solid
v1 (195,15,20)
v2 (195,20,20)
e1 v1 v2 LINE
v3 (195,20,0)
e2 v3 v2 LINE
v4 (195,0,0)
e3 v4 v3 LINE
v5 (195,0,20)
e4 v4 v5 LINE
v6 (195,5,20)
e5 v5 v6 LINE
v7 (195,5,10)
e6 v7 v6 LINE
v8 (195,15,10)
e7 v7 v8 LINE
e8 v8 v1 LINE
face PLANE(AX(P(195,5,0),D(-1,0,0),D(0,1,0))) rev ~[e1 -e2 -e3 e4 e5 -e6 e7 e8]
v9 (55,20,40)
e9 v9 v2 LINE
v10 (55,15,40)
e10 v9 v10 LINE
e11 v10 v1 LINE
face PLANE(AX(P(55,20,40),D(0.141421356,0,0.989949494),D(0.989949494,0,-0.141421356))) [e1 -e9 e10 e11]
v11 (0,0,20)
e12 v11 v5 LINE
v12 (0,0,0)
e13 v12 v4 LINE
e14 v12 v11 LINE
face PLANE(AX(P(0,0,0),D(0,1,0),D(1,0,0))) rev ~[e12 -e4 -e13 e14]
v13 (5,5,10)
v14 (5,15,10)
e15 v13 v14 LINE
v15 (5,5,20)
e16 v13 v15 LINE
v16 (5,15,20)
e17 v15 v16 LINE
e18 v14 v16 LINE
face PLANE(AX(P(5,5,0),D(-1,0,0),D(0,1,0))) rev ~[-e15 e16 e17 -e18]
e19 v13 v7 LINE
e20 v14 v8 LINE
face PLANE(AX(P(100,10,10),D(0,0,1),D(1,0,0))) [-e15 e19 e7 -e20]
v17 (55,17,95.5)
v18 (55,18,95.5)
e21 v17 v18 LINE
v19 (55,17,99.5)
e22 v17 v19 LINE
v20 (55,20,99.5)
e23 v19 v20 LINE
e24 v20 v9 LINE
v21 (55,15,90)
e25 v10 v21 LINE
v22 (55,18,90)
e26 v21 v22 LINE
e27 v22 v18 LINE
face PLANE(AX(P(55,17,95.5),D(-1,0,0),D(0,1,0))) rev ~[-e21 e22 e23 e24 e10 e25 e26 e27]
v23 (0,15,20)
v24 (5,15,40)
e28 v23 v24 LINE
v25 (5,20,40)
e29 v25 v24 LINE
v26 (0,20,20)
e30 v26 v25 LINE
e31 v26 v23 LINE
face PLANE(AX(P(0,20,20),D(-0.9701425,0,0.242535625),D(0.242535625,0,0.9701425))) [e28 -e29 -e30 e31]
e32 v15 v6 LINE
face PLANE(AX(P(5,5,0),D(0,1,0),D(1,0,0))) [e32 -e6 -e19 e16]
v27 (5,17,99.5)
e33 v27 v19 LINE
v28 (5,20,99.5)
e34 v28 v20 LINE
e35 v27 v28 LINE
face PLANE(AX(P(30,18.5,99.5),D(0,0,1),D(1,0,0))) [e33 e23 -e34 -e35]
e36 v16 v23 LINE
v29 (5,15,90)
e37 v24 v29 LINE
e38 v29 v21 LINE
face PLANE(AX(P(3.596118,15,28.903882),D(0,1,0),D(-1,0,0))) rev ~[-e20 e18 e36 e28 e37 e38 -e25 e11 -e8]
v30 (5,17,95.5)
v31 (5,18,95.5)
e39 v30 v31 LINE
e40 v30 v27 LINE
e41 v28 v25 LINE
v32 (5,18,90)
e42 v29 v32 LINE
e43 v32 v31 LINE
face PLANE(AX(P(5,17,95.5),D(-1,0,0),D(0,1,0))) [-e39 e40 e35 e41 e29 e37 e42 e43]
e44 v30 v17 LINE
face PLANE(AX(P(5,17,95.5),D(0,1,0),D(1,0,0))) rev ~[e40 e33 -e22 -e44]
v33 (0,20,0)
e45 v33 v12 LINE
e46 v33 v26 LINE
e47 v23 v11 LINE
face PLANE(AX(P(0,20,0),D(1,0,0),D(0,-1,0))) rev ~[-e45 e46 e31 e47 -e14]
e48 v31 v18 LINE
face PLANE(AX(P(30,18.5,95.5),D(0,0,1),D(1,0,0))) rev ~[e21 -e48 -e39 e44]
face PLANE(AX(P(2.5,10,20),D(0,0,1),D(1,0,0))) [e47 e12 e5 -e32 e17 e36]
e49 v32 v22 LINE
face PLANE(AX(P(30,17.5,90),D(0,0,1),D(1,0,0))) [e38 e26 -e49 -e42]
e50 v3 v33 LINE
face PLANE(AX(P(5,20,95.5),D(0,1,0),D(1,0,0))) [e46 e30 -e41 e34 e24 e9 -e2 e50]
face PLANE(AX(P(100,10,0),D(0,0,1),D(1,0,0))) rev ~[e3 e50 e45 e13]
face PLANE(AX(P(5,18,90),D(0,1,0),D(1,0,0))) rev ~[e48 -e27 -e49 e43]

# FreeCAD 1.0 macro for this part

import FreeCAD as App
import Part
import Sketcher
Q = App.Units.Quantity

doc = App.newDocument("Part")
params = doc.addObject("Spreadsheet::Sheet", "Params")
for row, (alias, value) in enumerate([
    ("sketch1_width", "195 mm"),
    ("sketch1_width2", "190 mm"),
    ("sketch1_height", "20 mm"),
    ("sketch1_height2", "5 mm"),
    ("pad1_length", "20 mm"),
    ("sketch2_width", "190 mm"),
    ("sketch2_height", "10 mm"),
    ("pad2_length", "10 mm"),
    ("sketch3_width", "50 mm"),
    ("sketch3_height", "5 mm"),
    ("pad3_length", "70 mm"),
    ("sketch4_width", "5 mm"),
    ("sketch4_width2", "140 mm"),
    ("sketch4_height", "20 mm"),
    ("pad4_length", "5 mm"),
    ("sketch5_width", "50 mm"),
    ("sketch5_height", "2 mm"),
    ("pad5_length", "5.5 mm"),
    ("sketch6_width", "50 mm"),
    ("sketch6_height", "3 mm"),
    ("pad6_length", "4 mm"),
], start=1):
    params.set(f"A{row}", alias)
    params.set(f"B{row}", "=" + value)
    params.setAlias(f"B{row}", alias)

body = doc.addObject("PartDesign::Body", "Body")

sketch1 = body.newObject("Sketcher::SketchObject", "Sketch")
sketch1.AttachmentSupport = (doc.getObject("XY_Plane"), [""])
sketch1.MapMode = "FlatFace"
sketch1.addGeometry(Part.LineSegment(App.Vector(0, 20, 0), App.Vector(0, 0, 0)), False)
sketch1.addGeometry(Part.LineSegment(App.Vector(0, 0, 0), App.Vector(195, 0, 0)), False)
sketch1.addGeometry(Part.LineSegment(App.Vector(195, 0, 0), App.Vector(195, 5, 0)), False)
sketch1.addGeometry(Part.LineSegment(App.Vector(195, 5, 0), App.Vector(5, 5, 0)), False)
sketch1.addGeometry(Part.LineSegment(App.Vector(5, 5, 0), App.Vector(5, 15, 0)), False)
sketch1.addGeometry(Part.LineSegment(App.Vector(5, 15, 0), App.Vector(195, 15, 0)), False)
sketch1.addGeometry(Part.LineSegment(App.Vector(195, 15, 0), App.Vector(195, 20, 0)), False)
sketch1.addGeometry(Part.LineSegment(App.Vector(195, 20, 0), App.Vector(0, 20, 0)), False)
sketch1.addConstraint(Sketcher.Constraint("Coincident", 0, 2, 1, 1))
sketch1.addConstraint(Sketcher.Constraint("Coincident", 1, 2, 2, 1))
sketch1.addConstraint(Sketcher.Constraint("Coincident", 2, 2, 3, 1))
sketch1.addConstraint(Sketcher.Constraint("Coincident", 3, 2, 4, 1))
sketch1.addConstraint(Sketcher.Constraint("Coincident", 4, 2, 5, 1))
sketch1.addConstraint(Sketcher.Constraint("Coincident", 5, 2, 6, 1))
sketch1.addConstraint(Sketcher.Constraint("Coincident", 6, 2, 7, 1))
sketch1.addConstraint(Sketcher.Constraint("Coincident", 7, 2, 0, 1))
sketch1.addConstraint(Sketcher.Constraint("Vertical", 0))
sketch1.addConstraint(Sketcher.Constraint("Horizontal", 1))
sketch1.addConstraint(Sketcher.Constraint("Vertical", 2))
sketch1.addConstraint(Sketcher.Constraint("Horizontal", 3))
sketch1.addConstraint(Sketcher.Constraint("Vertical", 4))
sketch1.addConstraint(Sketcher.Constraint("Horizontal", 5))
sketch1.addConstraint(Sketcher.Constraint("Vertical", 6))
sketch1.addConstraint(Sketcher.Constraint("Horizontal", 7))
sketch1.addConstraint(Sketcher.Constraint("Coincident", 0, 2, -1, 1))
sketch1.addConstraint(Sketcher.Constraint("Vertical", 2, 2, 5, 2))
sketch1.addConstraint(Sketcher.Constraint("Equal", 2, 6))
sketch1.addConstraint(Sketcher.Constraint("DistanceX", 1, 1, 1, 2, Q("195 mm")))
sketch1.addConstraint(Sketcher.Constraint("DistanceX", 3, 2, 3, 1, Q("190 mm")))
sketch1.addConstraint(Sketcher.Constraint("DistanceY", 0, 2, 0, 1, Q("20 mm")))
sketch1.addConstraint(Sketcher.Constraint("DistanceY", 2, 1, 2, 2, Q("5 mm")))
sketch1.setExpression("Constraints[19]", "Params.sketch1_width")
sketch1.setExpression("Constraints[20]", "Params.sketch1_width2")
sketch1.setExpression("Constraints[21]", "Params.sketch1_height")
sketch1.setExpression("Constraints[22]", "Params.sketch1_height2")
pad1 = body.newObject("PartDesign::Pad", "Pad")
pad1.Profile = sketch1
pad1.setExpression("Length", "Params.pad1_length")

sketch2 = body.newObject("Sketcher::SketchObject", "Sketch001")
sketch2.AttachmentSupport = (doc.getObject("XY_Plane"), [""])
sketch2.MapMode = "FlatFace"
sketch2.addGeometry(Part.LineSegment(App.Vector(5, 15, 0), App.Vector(5, 5, 0)), False)
sketch2.addGeometry(Part.LineSegment(App.Vector(5, 5, 0), App.Vector(195, 5, 0)), False)
sketch2.addGeometry(Part.LineSegment(App.Vector(195, 5, 0), App.Vector(195, 15, 0)), False)
sketch2.addGeometry(Part.LineSegment(App.Vector(195, 15, 0), App.Vector(5, 15, 0)), False)
sketch2.addConstraint(Sketcher.Constraint("Coincident", 0, 2, 1, 1))
sketch2.addConstraint(Sketcher.Constraint("Coincident", 1, 2, 2, 1))
sketch2.addConstraint(Sketcher.Constraint("Coincident", 2, 2, 3, 1))
sketch2.addConstraint(Sketcher.Constraint("Coincident", 3, 2, 0, 1))
sketch2.addConstraint(Sketcher.Constraint("Vertical", 0))
sketch2.addConstraint(Sketcher.Constraint("Horizontal", 1))
sketch2.addConstraint(Sketcher.Constraint("Vertical", 2))
sketch2.addConstraint(Sketcher.Constraint("Horizontal", 3))
sketch2.addConstraint(Sketcher.Constraint("DistanceX", 1, 1, 1, 2, Q("190 mm")))
sketch2.addConstraint(Sketcher.Constraint("DistanceY", 0, 2, 0, 1, Q("10 mm")))
sketch2.addConstraint(Sketcher.Constraint("DistanceX", -1, 1, 0, 2, Q("5 mm")))
sketch2.addConstraint(Sketcher.Constraint("DistanceY", -1, 1, 0, 2, Q("5 mm")))
sketch2.setExpression("Constraints[8]", "Params.sketch2_width")
sketch2.setExpression("Constraints[9]", "Params.sketch2_height")
pad2 = body.newObject("PartDesign::Pad", "Pad001")
pad2.Profile = sketch2
pad2.setExpression("Length", "Params.pad2_length")

sketch3 = body.newObject("Sketcher::SketchObject", "Sketch002")
sketch3.AttachmentSupport = (doc.getObject("XY_Plane"), [""])
sketch3.MapMode = "FlatFace"
sketch3.AttachmentOffset = App.Placement(App.Vector(0, 0, 20), App.Rotation())
sketch3.addGeometry(Part.LineSegment(App.Vector(5, 20, 0), App.Vector(5, 15, 0)), False)
sketch3.addGeometry(Part.LineSegment(App.Vector(5, 15, 0), App.Vector(55, 15, 0)), False)
sketch3.addGeometry(Part.LineSegment(App.Vector(55, 15, 0), App.Vector(55, 20, 0)), False)
sketch3.addGeometry(Part.LineSegment(App.Vector(55, 20, 0), App.Vector(5, 20, 0)), False)
sketch3.addConstraint(Sketcher.Constraint("Coincident", 0, 2, 1, 1))
sketch3.addConstraint(Sketcher.Constraint("Coincident", 1, 2, 2, 1))
sketch3.addConstraint(Sketcher.Constraint("Coincident", 2, 2, 3, 1))
sketch3.addConstraint(Sketcher.Constraint("Coincident", 3, 2, 0, 1))
sketch3.addConstraint(Sketcher.Constraint("Vertical", 0))
sketch3.addConstraint(Sketcher.Constraint("Horizontal", 1))
sketch3.addConstraint(Sketcher.Constraint("Vertical", 2))
sketch3.addConstraint(Sketcher.Constraint("Horizontal", 3))
sketch3.addConstraint(Sketcher.Constraint("DistanceX", 1, 1, 1, 2, Q("50 mm")))
sketch3.addConstraint(Sketcher.Constraint("DistanceY", 0, 2, 0, 1, Q("5 mm")))
sketch3.addConstraint(Sketcher.Constraint("DistanceX", -1, 1, 0, 2, Q("5 mm")))
sketch3.addConstraint(Sketcher.Constraint("DistanceY", -1, 1, 0, 2, Q("15 mm")))
sketch3.setExpression("Constraints[8]", "Params.sketch3_width")
sketch3.setExpression("Constraints[9]", "Params.sketch3_height")
pad3 = body.newObject("PartDesign::Pad", "Pad002")
pad3.Profile = sketch3
pad3.setExpression("Length", "Params.pad3_length")

sketch4 = body.newObject("Sketcher::SketchObject", "Sketch003")
sketch4.AttachmentSupport = (doc.getObject("XZ_Plane"), [""])
sketch4.MapMode = "FlatFace"
sketch4.AttachmentOffset = App.Placement(App.Vector(0, 0, -20), App.Rotation())
sketch4.addGeometry(Part.LineSegment(App.Vector(5, 20, 0), App.Vector(0, 20, 0)), False)
sketch4.addGeometry(Part.LineSegment(App.Vector(0, 20, 0), App.Vector(5, 40, 0)), False)
sketch4.addGeometry(Part.LineSegment(App.Vector(5, 40, 0), App.Vector(5, 20, 0)), False)
sketch4.addGeometry(Part.LineSegment(App.Vector(195, 20, 0), App.Vector(55, 20, 0)), False)
sketch4.addGeometry(Part.LineSegment(App.Vector(55, 20, 0), App.Vector(55, 40, 0)), False)
sketch4.addGeometry(Part.LineSegment(App.Vector(55, 40, 0), App.Vector(195, 20, 0)), False)
sketch4.addConstraint(Sketcher.Constraint("Coincident", 0, 2, 1, 1))
sketch4.addConstraint(Sketcher.Constraint("Coincident", 1, 2, 2, 1))
sketch4.addConstraint(Sketcher.Constraint("Coincident", 2, 2, 0, 1))
sketch4.addConstraint(Sketcher.Constraint("Coincident", 3, 2, 4, 1))
sketch4.addConstraint(Sketcher.Constraint("Coincident", 4, 2, 5, 1))
sketch4.addConstraint(Sketcher.Constraint("Coincident", 5, 2, 3, 1))
sketch4.addConstraint(Sketcher.Constraint("Horizontal", 0))
sketch4.addConstraint(Sketcher.Constraint("Vertical", 2))
sketch4.addConstraint(Sketcher.Constraint("Horizontal", 3))
sketch4.addConstraint(Sketcher.Constraint("Vertical", 4))
sketch4.addConstraint(Sketcher.Constraint("PointOnObject", 0, 2, -2))
sketch4.addConstraint(Sketcher.Constraint("Horizontal", 2, 2, 3, 2))
sketch4.addConstraint(Sketcher.Constraint("Horizontal", 1, 2, 4, 2))
sketch4.addConstraint(Sketcher.Constraint("DistanceX", 0, 2, 0, 1, Q("5 mm")))
sketch4.addConstraint(Sketcher.Constraint("DistanceX", 3, 2, 3, 1, Q("140 mm")))
sketch4.addConstraint(Sketcher.Constraint("DistanceY", 2, 2, 2, 1, Q("20 mm")))
sketch4.addConstraint(Sketcher.Constraint("DistanceY", -1, 1, 0, 2, Q("20 mm")))
sketch4.addConstraint(Sketcher.Constraint("DistanceX", -1, 1, 3, 2, Q("55 mm")))
sketch4.setExpression("Constraints[13]", "Params.sketch4_width")
sketch4.setExpression("Constraints[14]", "Params.sketch4_width2")
sketch4.setExpression("Constraints[15]", "Params.sketch4_height")
pad4 = body.newObject("PartDesign::Pad", "Pad003")
pad4.Profile = sketch4
pad4.setExpression("Length", "Params.pad4_length")

sketch5 = body.newObject("Sketcher::SketchObject", "Sketch004")
sketch5.AttachmentSupport = (doc.getObject("XY_Plane"), [""])
sketch5.MapMode = "FlatFace"
sketch5.AttachmentOffset = App.Placement(App.Vector(0, 0, 90), App.Rotation())
sketch5.addGeometry(Part.LineSegment(App.Vector(5, 20, 0), App.Vector(5, 18, 0)), False)
sketch5.addGeometry(Part.LineSegment(App.Vector(5, 18, 0), App.Vector(55, 18, 0)), False)
sketch5.addGeometry(Part.LineSegment(App.Vector(55, 18, 0), App.Vector(55, 20, 0)), False)
sketch5.addGeometry(Part.LineSegment(App.Vector(55, 20, 0), App.Vector(5, 20, 0)), False)
sketch5.addConstraint(Sketcher.Constraint("Coincident", 0, 2, 1, 1))
sketch5.addConstraint(Sketcher.Constraint("Coincident", 1, 2, 2, 1))
sketch5.addConstraint(Sketcher.Constraint("Coincident", 2, 2, 3, 1))
sketch5.addConstraint(Sketcher.Constraint("Coincident", 3, 2, 0, 1))
sketch5.addConstraint(Sketcher.Constraint("Vertical", 0))
sketch5.addConstraint(Sketcher.Constraint("Horizontal", 1))
sketch5.addConstraint(Sketcher.Constraint("Vertical", 2))
sketch5.addConstraint(Sketcher.Constraint("Horizontal", 3))
sketch5.addConstraint(Sketcher.Constraint("DistanceX", 1, 1, 1, 2, Q("50 mm")))
sketch5.addConstraint(Sketcher.Constraint("DistanceY", 0, 2, 0, 1, Q("2 mm")))
sketch5.addConstraint(Sketcher.Constraint("DistanceX", -1, 1, 0, 2, Q("5 mm")))
sketch5.addConstraint(Sketcher.Constraint("DistanceY", -1, 1, 0, 2, Q("18 mm")))
sketch5.setExpression("Constraints[8]", "Params.sketch5_width")
sketch5.setExpression("Constraints[9]", "Params.sketch5_height")
pad5 = body.newObject("PartDesign::Pad", "Pad004")
pad5.Profile = sketch5
pad5.setExpression("Length", "Params.pad5_length")

sketch6 = body.newObject("Sketcher::SketchObject", "Sketch005")
sketch6.AttachmentSupport = (doc.getObject("XY_Plane"), [""])
sketch6.MapMode = "FlatFace"
sketch6.AttachmentOffset = App.Placement(App.Vector(0, 0, 95.5), App.Rotation())
sketch6.addGeometry(Part.LineSegment(App.Vector(5, 20, 0), App.Vector(5, 17, 0)), False)
sketch6.addGeometry(Part.LineSegment(App.Vector(5, 17, 0), App.Vector(55, 17, 0)), False)
sketch6.addGeometry(Part.LineSegment(App.Vector(55, 17, 0), App.Vector(55, 20, 0)), False)
sketch6.addGeometry(Part.LineSegment(App.Vector(55, 20, 0), App.Vector(5, 20, 0)), False)
sketch6.addConstraint(Sketcher.Constraint("Coincident", 0, 2, 1, 1))
sketch6.addConstraint(Sketcher.Constraint("Coincident", 1, 2, 2, 1))
sketch6.addConstraint(Sketcher.Constraint("Coincident", 2, 2, 3, 1))
sketch6.addConstraint(Sketcher.Constraint("Coincident", 3, 2, 0, 1))
sketch6.addConstraint(Sketcher.Constraint("Vertical", 0))
sketch6.addConstraint(Sketcher.Constraint("Horizontal", 1))
sketch6.addConstraint(Sketcher.Constraint("Vertical", 2))
sketch6.addConstraint(Sketcher.Constraint("Horizontal", 3))
sketch6.addConstraint(Sketcher.Constraint("DistanceX", 1, 1, 1, 2, Q("50 mm")))
sketch6.addConstraint(Sketcher.Constraint("DistanceY", 0, 2, 0, 1, Q("3 mm")))
sketch6.addConstraint(Sketcher.Constraint("DistanceX", -1, 1, 0, 2, Q("5 mm")))
sketch6.addConstraint(Sketcher.Constraint("DistanceY", -1, 1, 0, 2, Q("17 mm")))
sketch6.setExpression("Constraints[8]", "Params.sketch6_width")
sketch6.setExpression("Constraints[9]", "Params.sketch6_height")
pad6 = body.newObject("PartDesign::Pad", "Pad005")
pad6.Profile = sketch6
pad6.setExpression("Length", "Params.pad6_length")

doc.recompute()
